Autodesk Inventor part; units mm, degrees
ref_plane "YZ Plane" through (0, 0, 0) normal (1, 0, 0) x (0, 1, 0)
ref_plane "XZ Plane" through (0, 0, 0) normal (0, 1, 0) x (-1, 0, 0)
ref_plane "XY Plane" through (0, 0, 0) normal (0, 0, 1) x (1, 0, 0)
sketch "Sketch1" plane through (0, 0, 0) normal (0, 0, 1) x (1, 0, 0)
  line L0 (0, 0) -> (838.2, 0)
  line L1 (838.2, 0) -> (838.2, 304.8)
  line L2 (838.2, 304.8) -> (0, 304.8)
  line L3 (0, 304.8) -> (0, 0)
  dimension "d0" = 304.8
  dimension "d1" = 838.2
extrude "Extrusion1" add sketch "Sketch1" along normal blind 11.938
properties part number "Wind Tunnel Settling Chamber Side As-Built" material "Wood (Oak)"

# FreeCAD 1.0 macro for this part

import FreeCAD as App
import Part
import Sketcher
Q = App.Units.Quantity


def add_polygon(sketch, points):
    """Adds a closed chain of lines whose ends are joined by coincident constraints."""
    first, n = sketch.GeometryCount, len(points)
    for a, b in zip(points, points[1:] + points[:1]):
        sketch.addGeometry(Part.LineSegment(App.Vector(*a, 0), App.Vector(*b, 0)), False)
    for i in range(n):
        sketch.addConstraint(Sketcher.Constraint("Coincident", first + i, 2, first + (i + 1) % n, 1))

doc = App.newDocument("Part")
params = doc.addObject("Spreadsheet::Sheet", "Params")
for row, (alias, value) in enumerate([
    ("sketch1_width", "33 in"),
    ("sketch1_height", "12 in"),
    ("pad1_length", "0.47 in"),
], start=1):
    params.set(f"A{row}", alias)
    params.set(f"B{row}", "=" + value)
    params.setAlias(f"B{row}", alias)

body = doc.addObject("PartDesign::Body", "Body")

# Sketch on XY plane
sketch1 = body.newObject("Sketcher::SketchObject", "Sketch")
sketch1.AttachmentSupport = (doc.getObject("XY_Plane"), [""])
sketch1.MapMode = "FlatFace"
add_polygon(sketch1, [(0, 305), (0, 0), (838, 0), (838, 305)])  # lines 0-3
sketch1.addConstraint([
    Sketcher.Constraint("Vertical", 0),
    Sketcher.Constraint("Horizontal", 1),
    Sketcher.Constraint("Vertical", 2),
    Sketcher.Constraint("Horizontal", 3),
    Sketcher.Constraint("Coincident", 0, 2, -1, 1),
    Sketcher.Constraint("DistanceX", 1, 1, 1, 2, Q("33 in")),
    Sketcher.Constraint("DistanceY", 0, 2, 0, 1, Q("12 in")),
])
sketch1.setExpression("Constraints[9]", "Params.sketch1_width")
sketch1.setExpression("Constraints[10]", "Params.sketch1_height")
pad1 = body.newObject("PartDesign::Pad", "Pad")
pad1.Profile = sketch1
pad1.setExpression("Length", "Params.pad1_length")

doc.recompute()
